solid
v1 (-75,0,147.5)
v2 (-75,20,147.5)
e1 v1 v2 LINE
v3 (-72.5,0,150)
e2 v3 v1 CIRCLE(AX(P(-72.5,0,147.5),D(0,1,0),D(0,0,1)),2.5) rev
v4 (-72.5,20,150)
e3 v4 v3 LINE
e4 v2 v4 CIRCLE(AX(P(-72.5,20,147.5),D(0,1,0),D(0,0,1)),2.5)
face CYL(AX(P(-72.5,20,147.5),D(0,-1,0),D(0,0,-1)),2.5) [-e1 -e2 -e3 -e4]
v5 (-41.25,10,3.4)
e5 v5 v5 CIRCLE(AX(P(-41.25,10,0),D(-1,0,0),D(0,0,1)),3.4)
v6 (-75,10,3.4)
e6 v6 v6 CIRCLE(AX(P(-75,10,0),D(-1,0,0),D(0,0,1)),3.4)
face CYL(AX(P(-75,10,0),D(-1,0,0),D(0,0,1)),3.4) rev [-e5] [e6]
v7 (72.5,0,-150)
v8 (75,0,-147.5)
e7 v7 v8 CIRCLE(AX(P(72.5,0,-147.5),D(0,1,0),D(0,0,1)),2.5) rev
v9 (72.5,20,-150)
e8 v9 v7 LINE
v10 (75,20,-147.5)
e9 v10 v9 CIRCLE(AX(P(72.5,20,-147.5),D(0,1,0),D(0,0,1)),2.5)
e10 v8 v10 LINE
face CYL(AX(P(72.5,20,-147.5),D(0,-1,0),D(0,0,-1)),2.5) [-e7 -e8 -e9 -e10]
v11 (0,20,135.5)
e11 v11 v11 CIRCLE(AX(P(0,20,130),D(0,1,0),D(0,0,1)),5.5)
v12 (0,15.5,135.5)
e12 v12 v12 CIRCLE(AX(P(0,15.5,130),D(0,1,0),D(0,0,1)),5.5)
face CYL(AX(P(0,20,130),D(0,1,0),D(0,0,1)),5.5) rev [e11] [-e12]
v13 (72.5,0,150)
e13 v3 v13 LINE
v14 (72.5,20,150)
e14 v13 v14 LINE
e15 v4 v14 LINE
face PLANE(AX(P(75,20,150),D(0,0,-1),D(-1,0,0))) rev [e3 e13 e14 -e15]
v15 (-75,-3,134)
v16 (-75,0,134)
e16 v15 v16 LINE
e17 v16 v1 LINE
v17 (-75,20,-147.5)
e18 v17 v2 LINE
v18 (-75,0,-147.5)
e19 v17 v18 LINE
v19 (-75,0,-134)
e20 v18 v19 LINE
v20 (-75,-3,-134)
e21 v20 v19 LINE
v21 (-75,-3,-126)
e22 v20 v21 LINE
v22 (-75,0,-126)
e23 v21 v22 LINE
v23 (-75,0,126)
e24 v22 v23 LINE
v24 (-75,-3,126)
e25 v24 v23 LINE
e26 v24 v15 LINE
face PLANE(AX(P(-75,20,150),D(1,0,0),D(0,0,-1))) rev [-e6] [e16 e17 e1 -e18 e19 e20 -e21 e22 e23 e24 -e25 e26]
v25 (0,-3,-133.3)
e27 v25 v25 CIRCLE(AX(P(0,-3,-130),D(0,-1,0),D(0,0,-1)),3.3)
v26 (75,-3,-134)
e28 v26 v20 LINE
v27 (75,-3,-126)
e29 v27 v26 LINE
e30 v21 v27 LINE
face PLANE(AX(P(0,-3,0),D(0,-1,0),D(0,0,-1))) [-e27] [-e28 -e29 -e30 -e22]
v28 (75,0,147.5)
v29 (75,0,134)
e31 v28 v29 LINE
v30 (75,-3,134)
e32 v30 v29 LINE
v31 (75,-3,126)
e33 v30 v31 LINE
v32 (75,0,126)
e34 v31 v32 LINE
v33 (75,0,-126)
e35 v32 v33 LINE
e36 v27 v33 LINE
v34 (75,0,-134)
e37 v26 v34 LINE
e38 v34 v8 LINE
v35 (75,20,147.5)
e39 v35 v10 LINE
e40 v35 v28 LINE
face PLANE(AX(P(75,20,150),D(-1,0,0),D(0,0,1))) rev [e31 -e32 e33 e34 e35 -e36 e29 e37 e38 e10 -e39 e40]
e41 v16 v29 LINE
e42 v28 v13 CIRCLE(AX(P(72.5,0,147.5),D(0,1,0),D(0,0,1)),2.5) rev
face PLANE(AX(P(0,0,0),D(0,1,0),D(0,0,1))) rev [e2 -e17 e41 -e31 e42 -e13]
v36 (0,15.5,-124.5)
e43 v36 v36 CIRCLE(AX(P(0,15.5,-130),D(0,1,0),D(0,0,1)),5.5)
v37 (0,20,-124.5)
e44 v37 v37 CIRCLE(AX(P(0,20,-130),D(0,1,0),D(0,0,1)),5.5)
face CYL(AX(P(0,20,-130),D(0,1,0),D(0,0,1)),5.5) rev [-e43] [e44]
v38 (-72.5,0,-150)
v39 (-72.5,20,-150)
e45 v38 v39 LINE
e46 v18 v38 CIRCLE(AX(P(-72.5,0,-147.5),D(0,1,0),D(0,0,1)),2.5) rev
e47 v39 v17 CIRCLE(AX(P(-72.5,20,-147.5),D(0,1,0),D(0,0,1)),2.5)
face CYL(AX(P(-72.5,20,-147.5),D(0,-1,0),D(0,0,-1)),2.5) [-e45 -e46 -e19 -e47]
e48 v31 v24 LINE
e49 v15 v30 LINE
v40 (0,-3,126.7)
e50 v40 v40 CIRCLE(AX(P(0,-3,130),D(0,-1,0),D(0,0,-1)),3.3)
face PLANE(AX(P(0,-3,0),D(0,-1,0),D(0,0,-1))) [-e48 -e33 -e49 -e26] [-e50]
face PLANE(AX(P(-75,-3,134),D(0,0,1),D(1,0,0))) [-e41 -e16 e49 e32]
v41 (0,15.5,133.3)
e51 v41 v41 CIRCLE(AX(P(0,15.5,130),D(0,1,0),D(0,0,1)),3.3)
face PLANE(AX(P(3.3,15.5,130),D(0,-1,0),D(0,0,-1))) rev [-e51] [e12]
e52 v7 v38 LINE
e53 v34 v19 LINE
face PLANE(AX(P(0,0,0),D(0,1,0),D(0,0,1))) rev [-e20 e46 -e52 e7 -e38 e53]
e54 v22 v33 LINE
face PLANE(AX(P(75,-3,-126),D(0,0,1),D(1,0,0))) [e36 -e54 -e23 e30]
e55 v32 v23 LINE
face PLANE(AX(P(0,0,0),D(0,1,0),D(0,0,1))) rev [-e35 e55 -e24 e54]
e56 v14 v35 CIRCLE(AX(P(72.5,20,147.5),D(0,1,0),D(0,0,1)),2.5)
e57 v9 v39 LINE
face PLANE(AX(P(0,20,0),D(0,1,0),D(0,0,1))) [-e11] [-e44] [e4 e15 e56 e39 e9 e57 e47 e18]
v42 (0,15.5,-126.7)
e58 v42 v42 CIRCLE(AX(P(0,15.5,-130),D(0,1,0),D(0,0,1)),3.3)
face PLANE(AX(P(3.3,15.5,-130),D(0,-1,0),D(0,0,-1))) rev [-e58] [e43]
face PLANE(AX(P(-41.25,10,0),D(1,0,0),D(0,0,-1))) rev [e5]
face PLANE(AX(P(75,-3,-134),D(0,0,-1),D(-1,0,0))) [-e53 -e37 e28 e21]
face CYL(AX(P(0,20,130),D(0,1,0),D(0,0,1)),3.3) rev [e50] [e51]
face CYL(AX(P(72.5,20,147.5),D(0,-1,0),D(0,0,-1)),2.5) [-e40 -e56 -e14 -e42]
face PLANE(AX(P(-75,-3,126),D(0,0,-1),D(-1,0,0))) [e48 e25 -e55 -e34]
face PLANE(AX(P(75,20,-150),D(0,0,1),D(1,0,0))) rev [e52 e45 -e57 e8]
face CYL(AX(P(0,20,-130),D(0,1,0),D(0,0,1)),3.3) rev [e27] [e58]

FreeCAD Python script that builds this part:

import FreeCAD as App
import Part
import Sketcher

V = App.Vector


def edges_at(feature, points):
    """Names of the edges that pass closest to the given points."""
    edges = feature.Shape.Edges
    near = lambda p: min(range(len(edges)), key=lambda i: edges[i].distToShape(Part.Vertex(*p))[0])
    return sorted({f"Edge{near(p) + 1}" for p in points})


def add_polygon(sketch, points):
    """Adds a closed chain of lines whose ends are joined by coincident constraints."""
    first, n = sketch.GeometryCount, len(points)
    for a, b in zip(points, points[1:] + points[:1]):
        sketch.addGeometry(Part.LineSegment(App.Vector(*a, 0), App.Vector(*b, 0)), False)
    for i in range(n):
        sketch.addConstraint(Sketcher.Constraint("Coincident", first + i, 2, first + (i + 1) % n, 1))

doc = App.newDocument("Part")
body = doc.addObject("PartDesign::Body", "Body")

# Sketch on XZ plane
sketch1 = body.newObject("Sketcher::SketchObject", "Sketch")
sketch1.AttachmentSupport = (doc.getObject("XZ_Plane"), [""])
sketch1.MapMode = "FlatFace"
add_polygon(sketch1, [(-75, -150), (-75, 150), (75, 150), (75, -150)])  # lines 0-3
sketch1.addConstraint([
    Sketcher.Constraint("Vertical", 0),
    Sketcher.Constraint("Horizontal", 1),
    Sketcher.Constraint("Vertical", 2),
    Sketcher.Constraint("Horizontal", 3),
    Sketcher.Constraint("Symmetric", 0, 2, 2, 2, -1, 1),
    Sketcher.Constraint("DistanceX", 1, 1, 1, 2, 150.0),
    Sketcher.Constraint("DistanceY", 0, 1, 0, 2, 300.0),
])
pad1 = body.newObject("PartDesign::Pad", "Pad")
pad1.Profile = sketch1
pad1.Length = 20
pad1.Reversed = True

# Sketch on XZ plane
sketch2 = body.newObject("Sketcher::SketchObject", "Sketch001")
sketch2.AttachmentSupport = (doc.getObject("XZ_Plane"), [""])
sketch2.MapMode = "FlatFace"
add_polygon(sketch2, [(-75, 126), (-75, 134), (75, 134), (75, 126)])  # lines 0-3
add_polygon(sketch2, [(-75, -134), (-75, -126), (75, -126), (75, -134)])  # lines 4-7
sketch2.addConstraint([
    Sketcher.Constraint("Vertical", 0),
    Sketcher.Constraint("Horizontal", 1),
    Sketcher.Constraint("Vertical", 2),
    Sketcher.Constraint("Horizontal", 3),
    Sketcher.Constraint("Vertical", 4),
    Sketcher.Constraint("Horizontal", 5),
    Sketcher.Constraint("Vertical", 6),
    Sketcher.Constraint("Horizontal", 7),
    Sketcher.Constraint("Symmetric", 2, 2, 4, 2, -1, 1),
    Sketcher.Constraint("Symmetric", 0, 2, 6, 2, -1, 1),
    Sketcher.Constraint("Vertical", 3, 2, 4, 2),
    Sketcher.Constraint("DistanceX", 1, 1, 1, 2, 150.0),
    Sketcher.Constraint("DistanceY", 0, 1, 0, 2, 8.0),
    Sketcher.Constraint("DistanceY", -1, 1, 0, 2, 134.0),
])
pad2 = body.newObject("PartDesign::Pad", "Pad001")
pad2.Profile = sketch2
pad2.Length = 3

# Sketch on XZ plane
sketch3 = body.newObject("Sketcher::SketchObject", "Sketch002")
sketch3.AttachmentSupport = (doc.getObject("XZ_Plane"), [""])
sketch3.MapMode = "FlatFace"
sketch3.AttachmentOffset = App.Placement(V(0, 0, -20), App.Rotation())
sketch3.addGeometry([
    Part.Circle(V(0, 130, 0), V(0, 0, 1), 3.3),
    Part.Circle(V(0, -130, 0), V(0, 0, 1), 3.3),
], False)
sketch3.addConstraint([
    Sketcher.Constraint("Equal", 0, 1),
    Sketcher.Constraint("Symmetric", 0, 3, 1, 3, -1, 1),
    Sketcher.Constraint("PointOnObject", 0, 3, -2),
    Sketcher.Constraint("Diameter", 0, 6.6),
    Sketcher.Constraint("DistanceY", -1, 1, 0, 3, 130.0),
])
doc.recompute()
hole = body.newObject("PartDesign::Hole", "Hole")
hole.Profile = sketch3
hole.ThreadType = "None"
hole.Diameter = 6.6
hole.DepthType = "Dimension"
hole.Depth = 24.5
hole.DrillPoint = "Flat"
hole.HoleCutType = "Counterbore"
hole.HoleCutDiameter = 11
hole.HoleCutDepth = 4.5
hole.Reversed = True

# Sketch on YZ plane
sketch4 = body.newObject("Sketcher::SketchObject", "Sketch003")
sketch4.AttachmentSupport = (doc.getObject("YZ_Plane"), [""])
sketch4.MapMode = "FlatFace"
sketch4.AttachmentOffset = App.Placement(V(0, 0, -75), App.Rotation())
sketch4.addGeometry(Part.Circle(V(10, 0, 0), V(0, 0, 1), 3.4), False)
sketch4.addConstraint([
    Sketcher.Constraint("PointOnObject", 0, 3, -1),
    Sketcher.Constraint("Diameter", 0, 6.8),
    Sketcher.Constraint("DistanceX", -1, 1, 0, 3, 10.0),
])
doc.recompute()
hole2 = body.newObject("PartDesign::Hole", "Hole001")
hole2.Profile = sketch4
hole2.ThreadType = "None"
hole2.Diameter = 6.8
hole2.DepthType = "Dimension"
hole2.Depth = 33.75
hole2.DrillPoint = "Flat"
hole2.Reversed = True
doc.recompute()

fillet = body.newObject("PartDesign::Fillet", "Fillet")
fillet.Base = (hole2, edges_at(hole2, [
    (-75, 10, -150),
    (75, 10, -150),
    (75, 10, 150),
    (-75, 10, 150),
]))
fillet.Radius = 2.5

doc.recompute()
